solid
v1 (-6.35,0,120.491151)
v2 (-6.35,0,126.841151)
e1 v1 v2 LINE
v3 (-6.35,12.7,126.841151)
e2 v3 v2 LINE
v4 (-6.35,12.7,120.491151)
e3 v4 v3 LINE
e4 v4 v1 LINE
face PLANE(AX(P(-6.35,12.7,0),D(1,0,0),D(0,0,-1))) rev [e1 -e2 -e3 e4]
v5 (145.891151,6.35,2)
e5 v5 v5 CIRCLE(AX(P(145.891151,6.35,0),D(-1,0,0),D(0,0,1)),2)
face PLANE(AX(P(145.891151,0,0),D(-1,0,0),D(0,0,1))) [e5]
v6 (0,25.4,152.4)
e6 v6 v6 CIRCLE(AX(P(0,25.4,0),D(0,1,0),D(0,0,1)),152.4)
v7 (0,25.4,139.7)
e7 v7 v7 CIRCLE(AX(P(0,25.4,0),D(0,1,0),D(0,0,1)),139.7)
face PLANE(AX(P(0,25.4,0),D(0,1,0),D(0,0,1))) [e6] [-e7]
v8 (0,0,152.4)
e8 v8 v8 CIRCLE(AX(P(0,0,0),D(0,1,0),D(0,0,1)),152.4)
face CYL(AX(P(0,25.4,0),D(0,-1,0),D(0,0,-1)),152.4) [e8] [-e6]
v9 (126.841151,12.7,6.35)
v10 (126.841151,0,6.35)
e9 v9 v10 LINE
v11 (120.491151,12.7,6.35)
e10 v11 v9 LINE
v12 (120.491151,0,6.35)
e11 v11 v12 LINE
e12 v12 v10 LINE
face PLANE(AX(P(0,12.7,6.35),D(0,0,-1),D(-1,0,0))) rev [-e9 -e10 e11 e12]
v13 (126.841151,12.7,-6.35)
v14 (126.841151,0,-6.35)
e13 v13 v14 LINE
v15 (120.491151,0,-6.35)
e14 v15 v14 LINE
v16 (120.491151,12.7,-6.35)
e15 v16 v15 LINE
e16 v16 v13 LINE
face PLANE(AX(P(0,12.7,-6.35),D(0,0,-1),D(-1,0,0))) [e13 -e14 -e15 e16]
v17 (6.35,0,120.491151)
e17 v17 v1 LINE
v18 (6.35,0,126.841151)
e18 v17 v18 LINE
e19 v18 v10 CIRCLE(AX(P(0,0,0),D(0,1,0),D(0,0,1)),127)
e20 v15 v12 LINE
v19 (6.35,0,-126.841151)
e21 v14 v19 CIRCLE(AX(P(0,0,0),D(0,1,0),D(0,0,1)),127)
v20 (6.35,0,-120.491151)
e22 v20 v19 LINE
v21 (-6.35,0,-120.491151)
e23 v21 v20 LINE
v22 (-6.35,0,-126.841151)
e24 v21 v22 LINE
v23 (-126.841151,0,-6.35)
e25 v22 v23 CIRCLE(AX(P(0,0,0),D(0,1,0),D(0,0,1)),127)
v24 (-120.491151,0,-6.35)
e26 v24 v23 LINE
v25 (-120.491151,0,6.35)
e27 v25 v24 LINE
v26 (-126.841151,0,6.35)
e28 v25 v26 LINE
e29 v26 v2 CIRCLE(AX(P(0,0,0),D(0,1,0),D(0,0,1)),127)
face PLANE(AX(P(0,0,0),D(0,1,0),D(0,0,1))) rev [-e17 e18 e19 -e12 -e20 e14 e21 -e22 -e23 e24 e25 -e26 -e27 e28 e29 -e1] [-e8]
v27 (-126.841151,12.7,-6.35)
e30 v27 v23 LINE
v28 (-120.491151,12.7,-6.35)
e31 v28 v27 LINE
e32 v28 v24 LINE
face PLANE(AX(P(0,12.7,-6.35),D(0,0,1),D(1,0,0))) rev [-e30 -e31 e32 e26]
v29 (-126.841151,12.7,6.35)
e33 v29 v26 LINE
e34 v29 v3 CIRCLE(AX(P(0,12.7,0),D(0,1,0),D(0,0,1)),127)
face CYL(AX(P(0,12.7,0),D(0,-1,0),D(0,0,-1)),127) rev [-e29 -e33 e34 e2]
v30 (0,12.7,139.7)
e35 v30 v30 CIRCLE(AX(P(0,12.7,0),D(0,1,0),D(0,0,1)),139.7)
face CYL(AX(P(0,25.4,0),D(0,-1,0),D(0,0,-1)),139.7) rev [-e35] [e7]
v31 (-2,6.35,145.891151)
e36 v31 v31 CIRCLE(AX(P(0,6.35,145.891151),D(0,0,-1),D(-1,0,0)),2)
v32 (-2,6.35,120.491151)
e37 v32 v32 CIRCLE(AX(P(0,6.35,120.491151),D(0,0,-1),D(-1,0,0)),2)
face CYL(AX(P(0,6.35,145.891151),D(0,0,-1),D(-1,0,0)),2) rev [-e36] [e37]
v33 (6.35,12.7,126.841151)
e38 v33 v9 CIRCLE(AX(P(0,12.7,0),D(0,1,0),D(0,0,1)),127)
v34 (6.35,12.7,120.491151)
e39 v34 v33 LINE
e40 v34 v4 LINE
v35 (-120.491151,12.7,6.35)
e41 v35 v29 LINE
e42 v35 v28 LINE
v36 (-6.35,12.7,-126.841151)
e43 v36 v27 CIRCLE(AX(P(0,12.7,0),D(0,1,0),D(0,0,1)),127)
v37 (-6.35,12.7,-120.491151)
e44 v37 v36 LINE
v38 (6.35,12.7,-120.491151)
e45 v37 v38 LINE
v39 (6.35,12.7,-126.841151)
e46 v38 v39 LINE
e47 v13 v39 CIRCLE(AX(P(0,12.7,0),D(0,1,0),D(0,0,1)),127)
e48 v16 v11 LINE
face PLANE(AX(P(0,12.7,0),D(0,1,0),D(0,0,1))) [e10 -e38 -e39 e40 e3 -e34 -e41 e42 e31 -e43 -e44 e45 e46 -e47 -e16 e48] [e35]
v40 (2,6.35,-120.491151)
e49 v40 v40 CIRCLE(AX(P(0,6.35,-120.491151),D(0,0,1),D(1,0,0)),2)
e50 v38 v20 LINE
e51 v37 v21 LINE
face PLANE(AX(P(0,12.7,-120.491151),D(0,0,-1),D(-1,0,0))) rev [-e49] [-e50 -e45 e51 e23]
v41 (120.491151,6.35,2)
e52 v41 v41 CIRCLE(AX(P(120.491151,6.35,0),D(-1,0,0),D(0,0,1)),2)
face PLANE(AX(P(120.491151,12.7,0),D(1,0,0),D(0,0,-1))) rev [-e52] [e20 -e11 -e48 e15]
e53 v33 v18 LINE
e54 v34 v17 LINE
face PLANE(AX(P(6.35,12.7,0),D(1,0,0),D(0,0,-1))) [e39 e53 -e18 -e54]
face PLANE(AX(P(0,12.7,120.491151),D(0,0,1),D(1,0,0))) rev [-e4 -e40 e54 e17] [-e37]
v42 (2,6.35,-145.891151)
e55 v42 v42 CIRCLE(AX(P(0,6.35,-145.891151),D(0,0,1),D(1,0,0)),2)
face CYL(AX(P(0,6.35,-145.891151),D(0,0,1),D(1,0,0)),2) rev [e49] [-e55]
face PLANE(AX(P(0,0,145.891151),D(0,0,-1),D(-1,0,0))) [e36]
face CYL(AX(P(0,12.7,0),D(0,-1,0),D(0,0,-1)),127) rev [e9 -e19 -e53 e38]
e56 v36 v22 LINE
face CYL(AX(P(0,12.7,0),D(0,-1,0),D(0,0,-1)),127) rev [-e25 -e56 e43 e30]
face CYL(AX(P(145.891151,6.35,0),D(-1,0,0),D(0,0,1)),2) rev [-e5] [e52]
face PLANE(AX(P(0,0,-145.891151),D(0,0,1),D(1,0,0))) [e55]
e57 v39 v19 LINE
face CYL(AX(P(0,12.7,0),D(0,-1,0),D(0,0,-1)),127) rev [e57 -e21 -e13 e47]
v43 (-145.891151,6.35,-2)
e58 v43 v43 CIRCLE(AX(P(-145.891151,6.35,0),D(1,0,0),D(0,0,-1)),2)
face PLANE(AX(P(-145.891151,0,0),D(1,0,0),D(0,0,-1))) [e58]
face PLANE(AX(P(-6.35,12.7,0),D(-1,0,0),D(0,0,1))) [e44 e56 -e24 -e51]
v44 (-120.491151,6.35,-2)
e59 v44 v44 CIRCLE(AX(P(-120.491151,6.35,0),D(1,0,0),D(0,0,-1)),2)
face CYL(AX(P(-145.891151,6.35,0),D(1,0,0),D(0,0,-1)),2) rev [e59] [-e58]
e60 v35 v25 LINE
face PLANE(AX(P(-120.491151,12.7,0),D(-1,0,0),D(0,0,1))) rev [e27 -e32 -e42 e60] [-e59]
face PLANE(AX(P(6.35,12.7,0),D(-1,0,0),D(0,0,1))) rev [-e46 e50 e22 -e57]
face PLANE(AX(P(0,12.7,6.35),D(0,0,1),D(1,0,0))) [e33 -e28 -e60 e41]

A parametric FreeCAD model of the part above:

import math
import FreeCAD as App
import Part
import Sketcher

V = App.Vector
Q = App.Units.Quantity

doc = App.newDocument("Part")
params = doc.addObject("Spreadsheet::Sheet", "Params")
for row, (alias, value) in enumerate([
    ("sketch1_diameter", "12 in"),
    ("sketch1_diameter2", "11 in"),
    ("pad1_length", "1 in"),
    ("sketch2_diameter", "11 in"),
    ("sketch2_diameter2", "10 in"),
    ("pad2_length", "0.5 in"),
    ("sketch3_radius", "5 in"),
    ("sketch3_width", "0.5 in"),
    ("sketch3_width2", "0.25 in"),
    ("pad3_length", "0.5 in"),
    ("pocket1_length", "1 in"),
], start=1):
    params.set(f"A{row}", alias)
    params.set(f"B{row}", "=" + value)
    params.setAlias(f"B{row}", alias)

body = doc.addObject("PartDesign::Body", "Body")

sketch1 = body.newObject("Sketcher::SketchObject", "Sketch")
sketch1.AttachmentSupport = (doc.getObject("XZ_Plane"), [""])
sketch1.MapMode = "FlatFace"
sketch1.addGeometry([
    Part.Circle(V(0, 0, 0), V(0, 0, 1), 152),
    Part.Circle(V(0, 0, 0), V(0, 0, 1), 140),
], False)
sketch1.addConstraint([
    Sketcher.Constraint("Coincident", 0, 3, -1, 1),
    Sketcher.Constraint("Coincident", 1, 3, -1, 1),
    Sketcher.Constraint("Diameter", 0, Q("12 in")),
    Sketcher.Constraint("Diameter", 1, Q("11 in")),
])
sketch1.setExpression("Constraints[2]", "Params.sketch1_diameter")
sketch1.setExpression("Constraints[3]", "Params.sketch1_diameter2")
pad1 = body.newObject("PartDesign::Pad", "Pad")
pad1.Profile = sketch1
pad1.setExpression("Length", "Params.pad1_length")
pad1.Reversed = True

sketch2 = body.newObject("Sketcher::SketchObject", "Sketch001")
sketch2.AttachmentSupport = (doc.getObject("XZ_Plane"), [""])
sketch2.MapMode = "FlatFace"
sketch2.addGeometry([
    Part.Circle(V(0, 0, 0), V(0, 0, 1), 140),
    Part.Circle(V(0, 0, 0), V(0, 0, 1), 127),
], False)
sketch2.addConstraint([
    Sketcher.Constraint("Coincident", 0, 3, -1, 1),
    Sketcher.Constraint("Coincident", 1, 3, -1, 1),
    Sketcher.Constraint("Diameter", 0, Q("11 in")),
    Sketcher.Constraint("Diameter", 1, Q("10 in")),
])
sketch2.setExpression("Constraints[2]", "Params.sketch2_diameter")
sketch2.setExpression("Constraints[3]", "Params.sketch2_diameter2")
pad2 = body.newObject("PartDesign::Pad", "Pad001")
pad2.Profile = sketch2
pad2.setExpression("Length", "Params.pad2_length")
pad2.Reversed = True

sketch3 = body.newObject("Sketcher::SketchObject", "Sketch002")
sketch3.AttachmentSupport = (doc.getObject("XZ_Plane"), [""])
sketch3.MapMode = "FlatFace"
sketch3.addGeometry([
    Part.ArcOfCircle(Part.Circle(V(0, 0, 0), V(0, 0, 1), 127), math.radians(177.13), math.radians(182.87)),
    Part.LineSegment(V(-127, -6, 0), V(-120, -6, 0)),
    Part.LineSegment(V(-120, -6, 0), V(-120, 6, 0)),
    Part.LineSegment(V(-120, 6, 0), V(-127, 6, 0)),
    Part.ArcOfCircle(Part.Circle(V(0, 0, 0), V(0, 0, 1), 127), math.radians(87.13), math.radians(92.87)),
    Part.LineSegment(V(-6, 127, 0), V(-6, 120, 0)),
    Part.LineSegment(V(-6, 120, 0), V(6, 120, 0)),
    Part.LineSegment(V(6, 120, 0), V(6, 127, 0)),
    Part.LineSegment(V(120, -6, 0), V(127, -6, 0)),
    Part.ArcOfCircle(Part.Circle(V(0, 0, 0), V(0, 0, 1), 127), math.radians(-2.87), math.radians(0)),
    Part.ArcOfCircle(Part.Circle(V(0, 0, 0), V(0, 0, 1), 127), math.radians(0), math.radians(2.87)),
    Part.LineSegment(V(127, 6, 0), V(120, 6, 0)),
    Part.LineSegment(V(120, 6, 0), V(120, -6, 0)),
    Part.ArcOfCircle(Part.Circle(V(0, 0, 0), V(0, 0, 1), 127), math.radians(-90), math.radians(-87.13)),
    Part.LineSegment(V(6, -127, 0), V(6, -120, 0)),
    Part.LineSegment(V(6, -120, 0), V(-6, -120, 0)),
    Part.LineSegment(V(-6, -120, 0), V(-6, -127, 0)),
    Part.ArcOfCircle(Part.Circle(V(0, 0, 0), V(0, 0, 1), 127), math.radians(-92.87), math.radians(-90)),
], False)
sketch3.addConstraint([
    Sketcher.Constraint("Coincident", 0, 2, 1, 1),
    Sketcher.Constraint("Coincident", 1, 2, 2, 1),
    Sketcher.Constraint("Coincident", 2, 2, 3, 1),
    Sketcher.Constraint("Coincident", 3, 2, 0, 1),
    Sketcher.Constraint("Coincident", 4, 2, 5, 1),
    Sketcher.Constraint("Coincident", 5, 2, 6, 1),
    Sketcher.Constraint("Coincident", 6, 2, 7, 1),
    Sketcher.Constraint("Coincident", 7, 2, 4, 1),
    Sketcher.Constraint("Coincident", 8, 2, 9, 1),
    Sketcher.Constraint("Tangent", 9, 2, 10, 1),
    Sketcher.Constraint("Coincident", 10, 2, 11, 1),
    Sketcher.Constraint("Coincident", 11, 2, 12, 1),
    Sketcher.Constraint("Coincident", 12, 2, 8, 1),
    Sketcher.Constraint("Coincident", 13, 2, 14, 1),
    Sketcher.Constraint("Coincident", 14, 2, 15, 1),
    Sketcher.Constraint("Coincident", 15, 2, 16, 1),
    Sketcher.Constraint("Coincident", 16, 2, 17, 1),
    Sketcher.Constraint("Tangent", 17, 2, 13, 1),
    Sketcher.Constraint("Horizontal", 1),
    Sketcher.Constraint("Vertical", 2),
    Sketcher.Constraint("Horizontal", 3),
    Sketcher.Constraint("Vertical", 5),
    Sketcher.Constraint("Horizontal", 6),
    Sketcher.Constraint("Vertical", 7),
    Sketcher.Constraint("Horizontal", 8),
    Sketcher.Constraint("Horizontal", 11),
    Sketcher.Constraint("Vertical", 12),
    Sketcher.Constraint("Vertical", 14),
    Sketcher.Constraint("Horizontal", 15),
    Sketcher.Constraint("Vertical", 16),
    Sketcher.Constraint("Coincident", 0, 3, -1, 1),
    Sketcher.Constraint("Coincident", 4, 3, -1, 1),
    Sketcher.Constraint("Coincident", 9, 3, -1, 1),
    Sketcher.Constraint("Coincident", 13, 3, -1, 1),
    Sketcher.Constraint("Equal", 0, 4),
    Sketcher.Constraint("Equal", 4, 9),
    Sketcher.Constraint("Equal", 9, 10),
    Sketcher.Constraint("Equal", 10, 13),
    Sketcher.Constraint("Equal", 13, 17),
    Sketcher.Constraint("Symmetric", 1, 2, 11, 2, -1, 1),
    Sketcher.Constraint("Symmetric", 5, 2, 14, 2, -1, 1),
    Sketcher.Constraint("PointOnObject", 9, 2, -1),
    Sketcher.Constraint("PointOnObject", 17, 2, -2),
    Sketcher.Constraint("Horizontal", 4, 2, 7, 2),
    Sketcher.Constraint("Horizontal", 1, 2, 8, 2),
    Sketcher.Constraint("Horizontal", 3, 2, 10, 2),
    Sketcher.Constraint("Horizontal", 13, 2, 16, 2),
    Sketcher.Constraint("Equal", 15, 2),
    Sketcher.Constraint("Equal", 11, 5),
    Sketcher.Constraint("Radius", 0, Q("5 in")),
    Sketcher.Constraint("DistanceX", 6, 1, 6, 2, Q("0.5 in")),
    Sketcher.Constraint("DistanceX", 1, 1, 1, 2, Q("0.25 in")),
])
sketch3.setExpression("Constraints[49]", "Params.sketch3_radius")
sketch3.setExpression("Constraints[50]", "Params.sketch3_width")
sketch3.setExpression("Constraints[51]", "Params.sketch3_width2")
pad3 = body.newObject("PartDesign::Pad", "Pad002")
pad3.Profile = sketch3
pad3.setExpression("Length", "Params.pad3_length")
pad3.Reversed = True

sketch4 = body.newObject("Sketcher::SketchObject", "Sketch003")
sketch4.AttachmentSupport = (doc.getObject("YZ_Plane"), [""])
sketch4.MapMode = "FlatFace"
sketch4.AttachmentOffset = App.Placement(V(0, 0, -120.491151), App.Rotation())
sketch4.addGeometry([
    Part.ArcOfCircle(Part.Circle(V(6.3, 0, 0), V(0, 0, 1), 2), math.radians(-90), math.radians(0)),
    Part.ArcOfCircle(Part.Circle(V(6.3, 0, 0), V(0, 0, 1), 2), math.radians(0), math.radians(180)),
    Part.ArcOfCircle(Part.Circle(V(6.4, 0, 0), V(0, 0, 1), 2), math.radians(-180), math.radians(-90)),
], False)
sketch4.addConstraint([
    Sketcher.Constraint("Tangent", 0, 2, 1, 1),
    Sketcher.Constraint("Tangent", 1, 2, 2, 1),
    Sketcher.Constraint("Tangent", 2, 2, 0, 1),
    Sketcher.Constraint("PointOnObject", 0, 3, -1),
    Sketcher.Constraint("PointOnObject", 0, 2, -1),
    Sketcher.Constraint("PointOnObject", 1, 2, -1),
    Sketcher.Constraint("Vertical", 1, 3, 2, 2),
    Sketcher.Constraint("DistanceX", -1, 1, 0, 3, Q("0.25 in")),
    Sketcher.Constraint("Radius", 0, 2.0),
])
pocket1 = body.newObject("PartDesign::Pocket", "Pocket")
pocket1.Profile = sketch4
pocket1.setExpression("Length", "Params.pocket1_length")
doc.recompute()

polarpattern = body.newObject("PartDesign::PolarPattern", "PolarPattern")
polarpattern.Originals = [pocket1]
polarpattern.Axis = (doc.getObject("Y_Axis"), [""])
polarpattern.Angle = 360
polarpattern.Occurrences = 4
body.Tip = polarpattern

doc.recompute()
